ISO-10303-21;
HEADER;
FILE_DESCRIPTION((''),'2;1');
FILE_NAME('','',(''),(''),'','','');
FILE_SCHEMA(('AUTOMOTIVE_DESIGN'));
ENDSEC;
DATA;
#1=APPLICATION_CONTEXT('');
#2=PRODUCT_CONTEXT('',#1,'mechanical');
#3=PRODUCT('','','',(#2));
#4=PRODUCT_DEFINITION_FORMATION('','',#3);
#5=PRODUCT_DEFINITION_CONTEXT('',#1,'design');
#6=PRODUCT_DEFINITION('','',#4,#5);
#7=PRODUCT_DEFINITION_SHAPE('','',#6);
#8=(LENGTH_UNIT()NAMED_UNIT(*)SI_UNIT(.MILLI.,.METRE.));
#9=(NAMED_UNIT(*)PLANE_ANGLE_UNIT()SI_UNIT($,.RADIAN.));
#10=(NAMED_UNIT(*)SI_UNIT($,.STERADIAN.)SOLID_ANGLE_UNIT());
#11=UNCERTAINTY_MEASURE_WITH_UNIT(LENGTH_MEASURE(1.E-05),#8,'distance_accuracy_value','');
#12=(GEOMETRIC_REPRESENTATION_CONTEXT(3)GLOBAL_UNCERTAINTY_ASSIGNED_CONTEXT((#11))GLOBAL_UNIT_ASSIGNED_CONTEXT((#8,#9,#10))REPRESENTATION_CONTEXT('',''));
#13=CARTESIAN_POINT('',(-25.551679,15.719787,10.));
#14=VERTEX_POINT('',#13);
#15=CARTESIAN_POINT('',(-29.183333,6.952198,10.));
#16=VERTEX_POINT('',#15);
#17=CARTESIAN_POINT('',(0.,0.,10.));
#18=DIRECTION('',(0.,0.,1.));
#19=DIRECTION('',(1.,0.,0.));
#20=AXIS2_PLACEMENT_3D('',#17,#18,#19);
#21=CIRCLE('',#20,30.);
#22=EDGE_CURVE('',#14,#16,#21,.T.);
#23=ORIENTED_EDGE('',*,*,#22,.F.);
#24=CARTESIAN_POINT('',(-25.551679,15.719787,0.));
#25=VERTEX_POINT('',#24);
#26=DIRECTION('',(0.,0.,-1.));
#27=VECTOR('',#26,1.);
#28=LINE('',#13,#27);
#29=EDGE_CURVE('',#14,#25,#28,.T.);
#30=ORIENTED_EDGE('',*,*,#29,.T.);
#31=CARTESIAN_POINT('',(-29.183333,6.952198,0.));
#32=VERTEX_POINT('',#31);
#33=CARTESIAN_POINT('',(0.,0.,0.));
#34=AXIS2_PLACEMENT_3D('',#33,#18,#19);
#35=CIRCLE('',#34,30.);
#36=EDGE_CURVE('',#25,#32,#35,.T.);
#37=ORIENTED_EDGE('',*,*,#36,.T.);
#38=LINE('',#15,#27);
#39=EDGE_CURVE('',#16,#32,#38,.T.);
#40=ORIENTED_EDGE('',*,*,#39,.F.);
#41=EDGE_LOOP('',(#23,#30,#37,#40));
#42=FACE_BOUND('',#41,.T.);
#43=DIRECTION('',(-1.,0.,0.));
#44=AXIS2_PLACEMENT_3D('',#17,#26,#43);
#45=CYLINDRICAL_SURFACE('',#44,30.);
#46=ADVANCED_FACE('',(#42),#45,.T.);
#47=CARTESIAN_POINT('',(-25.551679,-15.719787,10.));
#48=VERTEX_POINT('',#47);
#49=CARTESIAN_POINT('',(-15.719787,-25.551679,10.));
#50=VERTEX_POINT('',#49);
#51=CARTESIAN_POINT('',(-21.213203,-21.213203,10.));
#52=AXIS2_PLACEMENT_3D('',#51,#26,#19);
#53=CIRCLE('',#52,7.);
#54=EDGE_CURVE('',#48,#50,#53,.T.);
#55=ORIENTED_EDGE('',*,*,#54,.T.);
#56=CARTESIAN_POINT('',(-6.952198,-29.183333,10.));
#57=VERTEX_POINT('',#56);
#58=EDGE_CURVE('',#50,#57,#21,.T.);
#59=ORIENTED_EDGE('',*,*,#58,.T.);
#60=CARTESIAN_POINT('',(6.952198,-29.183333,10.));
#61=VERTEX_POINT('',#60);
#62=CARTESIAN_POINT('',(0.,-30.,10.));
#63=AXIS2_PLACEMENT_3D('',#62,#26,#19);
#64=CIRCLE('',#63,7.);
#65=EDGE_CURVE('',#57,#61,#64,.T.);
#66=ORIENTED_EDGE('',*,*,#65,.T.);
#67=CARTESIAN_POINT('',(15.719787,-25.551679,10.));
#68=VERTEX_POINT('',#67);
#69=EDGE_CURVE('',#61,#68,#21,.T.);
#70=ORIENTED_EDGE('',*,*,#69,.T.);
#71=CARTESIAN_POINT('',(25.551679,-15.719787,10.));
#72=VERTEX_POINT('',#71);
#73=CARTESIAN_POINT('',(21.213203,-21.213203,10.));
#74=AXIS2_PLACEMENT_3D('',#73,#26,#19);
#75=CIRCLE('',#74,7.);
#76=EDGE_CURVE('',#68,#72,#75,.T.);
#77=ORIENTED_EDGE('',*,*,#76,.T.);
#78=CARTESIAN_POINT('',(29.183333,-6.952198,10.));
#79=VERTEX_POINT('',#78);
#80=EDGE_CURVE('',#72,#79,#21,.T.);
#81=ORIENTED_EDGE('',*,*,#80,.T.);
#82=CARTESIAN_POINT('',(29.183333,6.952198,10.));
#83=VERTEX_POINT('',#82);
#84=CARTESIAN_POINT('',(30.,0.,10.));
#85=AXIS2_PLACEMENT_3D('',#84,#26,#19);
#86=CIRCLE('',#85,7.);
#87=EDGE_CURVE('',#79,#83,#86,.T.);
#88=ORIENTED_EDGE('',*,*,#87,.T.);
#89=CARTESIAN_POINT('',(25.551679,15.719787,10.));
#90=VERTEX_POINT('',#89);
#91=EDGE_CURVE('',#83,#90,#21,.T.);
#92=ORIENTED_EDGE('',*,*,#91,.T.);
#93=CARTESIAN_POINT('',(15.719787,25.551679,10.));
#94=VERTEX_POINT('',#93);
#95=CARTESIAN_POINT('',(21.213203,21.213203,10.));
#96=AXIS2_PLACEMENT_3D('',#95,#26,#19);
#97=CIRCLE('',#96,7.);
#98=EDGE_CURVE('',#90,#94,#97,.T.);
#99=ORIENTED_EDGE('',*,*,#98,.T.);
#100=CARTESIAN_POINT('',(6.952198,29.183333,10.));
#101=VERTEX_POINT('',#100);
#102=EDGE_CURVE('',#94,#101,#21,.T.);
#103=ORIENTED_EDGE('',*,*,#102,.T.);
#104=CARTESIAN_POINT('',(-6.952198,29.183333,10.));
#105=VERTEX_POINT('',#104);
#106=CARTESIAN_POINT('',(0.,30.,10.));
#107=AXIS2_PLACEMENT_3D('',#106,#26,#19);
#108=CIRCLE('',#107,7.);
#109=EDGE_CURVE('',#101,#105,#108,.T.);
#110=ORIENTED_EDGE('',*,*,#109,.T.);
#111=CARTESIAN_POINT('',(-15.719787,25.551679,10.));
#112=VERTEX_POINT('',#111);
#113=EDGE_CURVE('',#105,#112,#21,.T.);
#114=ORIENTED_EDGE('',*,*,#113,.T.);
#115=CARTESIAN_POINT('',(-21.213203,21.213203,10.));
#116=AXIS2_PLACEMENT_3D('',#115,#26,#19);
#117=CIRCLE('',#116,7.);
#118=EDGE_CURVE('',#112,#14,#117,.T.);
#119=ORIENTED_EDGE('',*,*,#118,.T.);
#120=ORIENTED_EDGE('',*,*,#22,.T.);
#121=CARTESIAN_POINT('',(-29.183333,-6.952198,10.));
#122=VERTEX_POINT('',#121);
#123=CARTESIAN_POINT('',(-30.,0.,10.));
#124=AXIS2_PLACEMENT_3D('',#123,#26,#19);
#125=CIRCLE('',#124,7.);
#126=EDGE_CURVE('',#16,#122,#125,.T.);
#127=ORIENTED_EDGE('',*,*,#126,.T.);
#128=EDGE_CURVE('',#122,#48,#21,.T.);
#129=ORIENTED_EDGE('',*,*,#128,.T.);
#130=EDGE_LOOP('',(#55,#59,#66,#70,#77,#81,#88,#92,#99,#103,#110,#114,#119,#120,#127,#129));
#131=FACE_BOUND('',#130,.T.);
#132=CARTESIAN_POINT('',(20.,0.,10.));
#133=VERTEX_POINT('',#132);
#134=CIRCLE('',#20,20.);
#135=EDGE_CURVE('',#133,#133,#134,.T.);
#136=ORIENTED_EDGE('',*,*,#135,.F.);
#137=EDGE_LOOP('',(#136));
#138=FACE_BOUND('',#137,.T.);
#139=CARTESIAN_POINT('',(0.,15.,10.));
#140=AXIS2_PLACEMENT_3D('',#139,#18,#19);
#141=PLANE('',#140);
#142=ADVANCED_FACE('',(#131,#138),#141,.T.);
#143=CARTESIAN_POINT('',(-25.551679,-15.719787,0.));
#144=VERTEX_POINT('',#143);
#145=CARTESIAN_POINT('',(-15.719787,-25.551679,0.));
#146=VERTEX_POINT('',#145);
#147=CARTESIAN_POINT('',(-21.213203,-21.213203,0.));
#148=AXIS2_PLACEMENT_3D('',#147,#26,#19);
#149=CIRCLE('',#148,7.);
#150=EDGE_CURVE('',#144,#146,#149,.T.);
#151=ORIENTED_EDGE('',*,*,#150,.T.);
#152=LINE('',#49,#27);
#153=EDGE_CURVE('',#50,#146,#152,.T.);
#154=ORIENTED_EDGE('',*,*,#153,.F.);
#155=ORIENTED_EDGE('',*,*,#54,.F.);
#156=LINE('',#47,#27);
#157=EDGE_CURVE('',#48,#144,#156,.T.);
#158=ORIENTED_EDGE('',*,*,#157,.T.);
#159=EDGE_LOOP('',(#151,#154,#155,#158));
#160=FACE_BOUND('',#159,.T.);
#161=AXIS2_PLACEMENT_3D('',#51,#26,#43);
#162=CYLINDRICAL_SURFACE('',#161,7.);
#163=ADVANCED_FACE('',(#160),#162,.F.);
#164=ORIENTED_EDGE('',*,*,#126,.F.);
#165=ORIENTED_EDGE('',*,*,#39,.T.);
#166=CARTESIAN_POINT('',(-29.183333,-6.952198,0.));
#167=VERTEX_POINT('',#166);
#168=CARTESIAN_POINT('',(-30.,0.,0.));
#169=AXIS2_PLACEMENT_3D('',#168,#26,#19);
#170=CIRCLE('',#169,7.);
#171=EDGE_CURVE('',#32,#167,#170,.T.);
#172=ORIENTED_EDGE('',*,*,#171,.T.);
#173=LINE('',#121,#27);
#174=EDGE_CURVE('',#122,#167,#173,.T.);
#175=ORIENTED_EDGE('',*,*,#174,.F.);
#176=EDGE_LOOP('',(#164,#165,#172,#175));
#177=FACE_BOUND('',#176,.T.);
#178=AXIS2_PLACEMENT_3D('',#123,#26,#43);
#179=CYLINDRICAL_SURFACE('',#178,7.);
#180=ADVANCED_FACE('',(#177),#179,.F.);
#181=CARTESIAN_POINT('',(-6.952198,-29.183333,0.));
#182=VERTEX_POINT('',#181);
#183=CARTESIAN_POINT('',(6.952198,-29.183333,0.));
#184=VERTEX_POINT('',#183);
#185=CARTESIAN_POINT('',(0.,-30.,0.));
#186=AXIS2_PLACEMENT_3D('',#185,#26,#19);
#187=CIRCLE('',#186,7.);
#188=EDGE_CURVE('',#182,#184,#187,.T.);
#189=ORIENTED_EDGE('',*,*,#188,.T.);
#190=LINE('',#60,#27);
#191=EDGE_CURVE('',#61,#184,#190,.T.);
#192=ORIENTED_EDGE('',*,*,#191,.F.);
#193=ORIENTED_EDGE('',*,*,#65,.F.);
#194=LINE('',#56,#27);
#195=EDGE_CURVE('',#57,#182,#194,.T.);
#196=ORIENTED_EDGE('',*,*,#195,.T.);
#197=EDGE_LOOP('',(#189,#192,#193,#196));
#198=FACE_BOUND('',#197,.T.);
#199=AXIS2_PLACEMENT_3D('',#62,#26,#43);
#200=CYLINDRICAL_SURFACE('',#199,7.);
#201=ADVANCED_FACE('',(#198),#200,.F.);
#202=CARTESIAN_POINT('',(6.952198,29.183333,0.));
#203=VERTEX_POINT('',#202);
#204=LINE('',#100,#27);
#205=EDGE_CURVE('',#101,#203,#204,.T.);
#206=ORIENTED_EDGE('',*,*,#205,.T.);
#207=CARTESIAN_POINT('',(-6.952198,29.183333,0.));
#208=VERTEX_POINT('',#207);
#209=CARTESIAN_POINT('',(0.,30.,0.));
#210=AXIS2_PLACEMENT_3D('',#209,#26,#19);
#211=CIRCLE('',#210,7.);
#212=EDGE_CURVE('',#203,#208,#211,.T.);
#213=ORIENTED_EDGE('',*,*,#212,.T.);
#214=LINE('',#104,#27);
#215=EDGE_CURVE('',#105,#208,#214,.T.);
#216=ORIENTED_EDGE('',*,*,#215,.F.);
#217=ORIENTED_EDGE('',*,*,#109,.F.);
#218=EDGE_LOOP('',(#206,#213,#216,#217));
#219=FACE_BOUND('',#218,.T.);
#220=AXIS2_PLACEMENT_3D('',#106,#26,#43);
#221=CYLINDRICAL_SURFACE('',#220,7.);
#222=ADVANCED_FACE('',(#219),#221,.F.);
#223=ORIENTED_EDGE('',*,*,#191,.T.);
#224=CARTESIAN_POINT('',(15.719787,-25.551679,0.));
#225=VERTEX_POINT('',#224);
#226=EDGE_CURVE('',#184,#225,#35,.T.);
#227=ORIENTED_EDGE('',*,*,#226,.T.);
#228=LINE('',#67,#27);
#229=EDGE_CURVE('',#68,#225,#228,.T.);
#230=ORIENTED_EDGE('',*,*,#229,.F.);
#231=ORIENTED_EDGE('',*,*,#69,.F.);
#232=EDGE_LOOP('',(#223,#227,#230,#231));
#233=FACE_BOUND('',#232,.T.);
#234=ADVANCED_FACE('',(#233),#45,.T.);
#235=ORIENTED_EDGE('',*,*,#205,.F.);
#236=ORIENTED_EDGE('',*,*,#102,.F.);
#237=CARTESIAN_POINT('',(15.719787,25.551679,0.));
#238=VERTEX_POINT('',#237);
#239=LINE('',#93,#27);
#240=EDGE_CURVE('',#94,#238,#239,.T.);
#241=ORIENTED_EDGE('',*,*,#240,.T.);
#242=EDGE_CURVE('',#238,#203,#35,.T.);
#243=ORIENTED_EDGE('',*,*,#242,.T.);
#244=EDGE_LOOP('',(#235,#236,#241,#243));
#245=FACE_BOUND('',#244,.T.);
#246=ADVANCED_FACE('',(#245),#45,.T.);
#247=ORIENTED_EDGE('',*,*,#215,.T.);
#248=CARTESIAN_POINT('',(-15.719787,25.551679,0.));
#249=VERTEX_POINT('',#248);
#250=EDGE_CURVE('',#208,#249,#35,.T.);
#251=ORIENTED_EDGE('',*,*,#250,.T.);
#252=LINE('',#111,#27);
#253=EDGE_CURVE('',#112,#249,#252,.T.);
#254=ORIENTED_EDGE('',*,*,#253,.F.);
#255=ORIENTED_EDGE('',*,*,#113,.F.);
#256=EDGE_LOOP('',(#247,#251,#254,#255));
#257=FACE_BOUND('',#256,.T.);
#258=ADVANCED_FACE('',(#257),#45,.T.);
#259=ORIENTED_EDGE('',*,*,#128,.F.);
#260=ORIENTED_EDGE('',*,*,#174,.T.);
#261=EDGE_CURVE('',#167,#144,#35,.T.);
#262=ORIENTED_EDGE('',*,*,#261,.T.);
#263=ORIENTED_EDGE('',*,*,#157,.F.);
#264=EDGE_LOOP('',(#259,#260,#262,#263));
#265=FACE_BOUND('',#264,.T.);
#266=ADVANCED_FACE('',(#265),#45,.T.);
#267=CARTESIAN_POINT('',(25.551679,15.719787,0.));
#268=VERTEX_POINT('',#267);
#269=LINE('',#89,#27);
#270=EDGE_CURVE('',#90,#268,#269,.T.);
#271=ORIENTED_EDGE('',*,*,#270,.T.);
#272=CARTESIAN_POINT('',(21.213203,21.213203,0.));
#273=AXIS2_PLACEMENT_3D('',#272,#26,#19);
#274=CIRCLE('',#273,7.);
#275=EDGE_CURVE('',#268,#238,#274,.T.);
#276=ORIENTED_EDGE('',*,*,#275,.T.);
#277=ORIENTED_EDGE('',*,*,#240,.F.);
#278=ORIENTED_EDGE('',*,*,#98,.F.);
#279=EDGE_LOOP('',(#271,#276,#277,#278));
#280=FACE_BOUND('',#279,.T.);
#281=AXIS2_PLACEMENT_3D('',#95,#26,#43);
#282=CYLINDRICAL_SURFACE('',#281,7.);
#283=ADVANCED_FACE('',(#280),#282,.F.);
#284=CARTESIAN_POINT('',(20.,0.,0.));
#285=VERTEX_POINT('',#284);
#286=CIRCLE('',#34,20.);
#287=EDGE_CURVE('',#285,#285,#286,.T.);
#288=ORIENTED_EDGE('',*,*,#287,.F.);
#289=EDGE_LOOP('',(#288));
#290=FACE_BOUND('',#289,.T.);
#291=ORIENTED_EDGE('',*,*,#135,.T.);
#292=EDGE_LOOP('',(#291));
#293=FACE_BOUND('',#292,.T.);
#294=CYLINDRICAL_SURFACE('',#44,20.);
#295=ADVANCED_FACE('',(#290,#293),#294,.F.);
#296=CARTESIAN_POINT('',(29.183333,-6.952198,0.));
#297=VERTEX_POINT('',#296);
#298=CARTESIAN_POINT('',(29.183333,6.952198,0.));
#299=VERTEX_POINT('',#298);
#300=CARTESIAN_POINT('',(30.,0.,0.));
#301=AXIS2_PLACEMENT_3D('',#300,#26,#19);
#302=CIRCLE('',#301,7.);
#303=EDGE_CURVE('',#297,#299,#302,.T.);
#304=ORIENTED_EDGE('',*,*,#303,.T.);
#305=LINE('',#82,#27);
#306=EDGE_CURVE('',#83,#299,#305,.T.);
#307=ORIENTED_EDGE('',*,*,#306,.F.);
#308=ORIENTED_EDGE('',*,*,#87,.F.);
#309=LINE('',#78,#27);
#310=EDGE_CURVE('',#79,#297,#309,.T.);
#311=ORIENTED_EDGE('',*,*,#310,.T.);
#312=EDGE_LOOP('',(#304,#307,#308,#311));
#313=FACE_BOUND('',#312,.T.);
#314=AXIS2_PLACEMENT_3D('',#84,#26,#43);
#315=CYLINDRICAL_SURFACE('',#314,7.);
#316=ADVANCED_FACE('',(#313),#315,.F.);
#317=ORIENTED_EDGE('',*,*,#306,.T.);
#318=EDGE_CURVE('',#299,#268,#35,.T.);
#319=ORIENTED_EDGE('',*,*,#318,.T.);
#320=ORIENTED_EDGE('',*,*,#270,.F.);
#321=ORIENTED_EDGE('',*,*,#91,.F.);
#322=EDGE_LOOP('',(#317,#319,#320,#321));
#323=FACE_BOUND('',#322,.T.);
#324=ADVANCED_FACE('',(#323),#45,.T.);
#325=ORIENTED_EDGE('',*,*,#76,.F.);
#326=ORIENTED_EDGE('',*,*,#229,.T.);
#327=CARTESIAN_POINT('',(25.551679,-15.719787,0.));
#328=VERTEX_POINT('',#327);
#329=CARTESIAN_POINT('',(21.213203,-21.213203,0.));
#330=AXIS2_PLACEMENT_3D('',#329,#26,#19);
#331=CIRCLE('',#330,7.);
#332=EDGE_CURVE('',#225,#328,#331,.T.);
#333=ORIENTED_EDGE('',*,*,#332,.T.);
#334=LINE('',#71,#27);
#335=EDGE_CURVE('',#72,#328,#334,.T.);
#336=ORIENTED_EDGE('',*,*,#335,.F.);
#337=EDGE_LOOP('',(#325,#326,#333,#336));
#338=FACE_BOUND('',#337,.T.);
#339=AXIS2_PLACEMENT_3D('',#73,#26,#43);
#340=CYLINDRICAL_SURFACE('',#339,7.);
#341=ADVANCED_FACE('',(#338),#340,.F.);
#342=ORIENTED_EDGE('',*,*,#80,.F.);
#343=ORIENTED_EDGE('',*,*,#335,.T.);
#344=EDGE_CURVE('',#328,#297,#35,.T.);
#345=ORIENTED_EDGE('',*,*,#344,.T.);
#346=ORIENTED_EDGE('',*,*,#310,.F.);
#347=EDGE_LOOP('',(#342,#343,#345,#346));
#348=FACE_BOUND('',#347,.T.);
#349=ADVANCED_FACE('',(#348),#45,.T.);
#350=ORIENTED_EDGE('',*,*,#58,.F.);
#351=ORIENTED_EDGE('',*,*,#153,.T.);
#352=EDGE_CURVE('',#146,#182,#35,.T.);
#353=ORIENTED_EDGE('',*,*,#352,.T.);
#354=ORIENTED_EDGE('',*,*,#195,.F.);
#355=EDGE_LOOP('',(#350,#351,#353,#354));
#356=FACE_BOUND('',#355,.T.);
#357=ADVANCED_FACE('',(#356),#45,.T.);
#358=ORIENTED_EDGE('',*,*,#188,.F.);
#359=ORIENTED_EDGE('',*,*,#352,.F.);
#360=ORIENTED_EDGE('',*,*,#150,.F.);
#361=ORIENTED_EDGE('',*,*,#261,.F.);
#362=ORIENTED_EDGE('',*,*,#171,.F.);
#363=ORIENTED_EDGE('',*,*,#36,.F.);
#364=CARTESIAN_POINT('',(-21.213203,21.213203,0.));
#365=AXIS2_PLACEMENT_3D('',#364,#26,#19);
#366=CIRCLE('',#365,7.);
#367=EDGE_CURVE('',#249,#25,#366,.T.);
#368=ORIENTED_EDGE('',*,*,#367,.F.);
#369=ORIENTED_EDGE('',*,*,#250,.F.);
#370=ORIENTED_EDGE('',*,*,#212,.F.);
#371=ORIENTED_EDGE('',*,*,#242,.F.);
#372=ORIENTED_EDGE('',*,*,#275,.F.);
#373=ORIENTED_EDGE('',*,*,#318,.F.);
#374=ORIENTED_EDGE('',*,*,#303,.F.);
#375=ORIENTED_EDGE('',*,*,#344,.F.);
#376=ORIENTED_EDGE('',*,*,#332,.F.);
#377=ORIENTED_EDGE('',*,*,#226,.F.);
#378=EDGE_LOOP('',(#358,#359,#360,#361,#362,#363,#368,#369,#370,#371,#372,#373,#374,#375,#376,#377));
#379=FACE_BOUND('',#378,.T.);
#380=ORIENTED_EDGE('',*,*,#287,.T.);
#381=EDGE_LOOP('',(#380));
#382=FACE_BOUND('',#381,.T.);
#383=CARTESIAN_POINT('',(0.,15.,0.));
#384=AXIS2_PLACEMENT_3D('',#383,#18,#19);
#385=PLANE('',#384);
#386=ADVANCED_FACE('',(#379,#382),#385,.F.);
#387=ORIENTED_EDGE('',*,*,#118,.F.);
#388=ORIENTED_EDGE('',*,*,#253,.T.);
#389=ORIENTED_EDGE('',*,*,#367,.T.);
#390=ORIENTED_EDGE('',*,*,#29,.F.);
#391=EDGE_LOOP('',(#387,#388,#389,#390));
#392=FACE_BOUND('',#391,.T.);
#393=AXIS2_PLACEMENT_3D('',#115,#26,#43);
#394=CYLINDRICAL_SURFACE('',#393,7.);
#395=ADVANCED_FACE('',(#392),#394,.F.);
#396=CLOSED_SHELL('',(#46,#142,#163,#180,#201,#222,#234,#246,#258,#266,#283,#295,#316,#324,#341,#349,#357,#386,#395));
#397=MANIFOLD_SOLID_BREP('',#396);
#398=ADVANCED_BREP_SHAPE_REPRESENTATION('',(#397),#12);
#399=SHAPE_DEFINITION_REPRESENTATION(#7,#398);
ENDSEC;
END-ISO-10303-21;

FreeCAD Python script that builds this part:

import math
import FreeCAD as App
import Part
import Sketcher
Q = App.Units.Quantity

doc = App.newDocument("Part")
body = doc.addObject("PartDesign::Body", "Body")

# Sketch on XY plane
sketch1 = body.newObject("Sketcher::SketchObject", "Sketch")
sketch1.AttachmentSupport = (doc.getObject("XY_Plane"), [""])
sketch1.MapMode = "FlatFace"
sketch1.addGeometry([
    Part.ArcOfCircle(Part.Circle(App.Vector(0, 0, 0), App.Vector(0, 0, 1), 30), math.radians(103.4), math.radians(121.6)),  # 0
    Part.ArcOfCircle(Part.Circle(App.Vector(-21, 21, 0), App.Vector(0, 0, 1), 7), math.radians(-128), math.radians(38)),  # 1
    Part.ArcOfCircle(Part.Circle(App.Vector(0, 0, 0), App.Vector(0, 0, 1), 30), math.radians(148.4), math.radians(166.6)),  # 2
    Part.ArcOfCircle(Part.Circle(App.Vector(-30, 0, 0), App.Vector(0, 0, 1), 7), math.radians(-83), math.radians(83)),  # 3
    Part.ArcOfCircle(Part.Circle(App.Vector(0, 0, 0), App.Vector(0, 0, 1), 30), math.radians(-166.6), math.radians(-148.4)),  # 4
    Part.ArcOfCircle(Part.Circle(App.Vector(-21, -21, 0), App.Vector(0, 0, 1), 7), math.radians(-38), math.radians(128)),  # 5
    Part.ArcOfCircle(Part.Circle(App.Vector(0, 0, 0), App.Vector(0, 0, 1), 30), math.radians(-121.6), math.radians(-103.4)),  # 6
    Part.ArcOfCircle(Part.Circle(App.Vector(0, -30, 0), App.Vector(0, 0, 1), 7), math.radians(7), math.radians(173)),  # 7
    Part.ArcOfCircle(Part.Circle(App.Vector(0, 0, 0), App.Vector(0, 0, 1), 30), math.radians(-76.6), math.radians(-58.4)),  # 8
    Part.ArcOfCircle(Part.Circle(App.Vector(21, -21, 0), App.Vector(0, 0, 1), 7), math.radians(52), math.radians(218)),  # 9
    Part.ArcOfCircle(Part.Circle(App.Vector(0, 0, 0), App.Vector(0, 0, 1), 30), math.radians(-31.6), math.radians(-13.4)),  # 10
    Part.ArcOfCircle(Part.Circle(App.Vector(30, 0, 0), App.Vector(0, 0, 1), 7), math.radians(97), math.radians(263)),  # 11
    Part.ArcOfCircle(Part.Circle(App.Vector(0, 0, 0), App.Vector(0, 0, 1), 30), math.radians(13.4), math.radians(31.6)),  # 12
    Part.ArcOfCircle(Part.Circle(App.Vector(21, 21, 0), App.Vector(0, 0, 1), 7), math.radians(142), math.radians(308)),  # 13
    Part.ArcOfCircle(Part.Circle(App.Vector(0, 0, 0), App.Vector(0, 0, 1), 30), math.radians(58.4), math.radians(76.6)),  # 14
    Part.ArcOfCircle(Part.Circle(App.Vector(0, 30, 0), App.Vector(0, 0, 1), 7), math.radians(-173), math.radians(-7)),  # 15
    Part.Circle(App.Vector(0, 0, 0), App.Vector(0, 0, 1), 20),  # 16
], False)
sketch1.addConstraint([
    Sketcher.Constraint("Coincident", 0, 2, 1, 2),
    Sketcher.Constraint("Coincident", 1, 1, 2, 1),
    Sketcher.Constraint("Coincident", 2, 2, 3, 2),
    Sketcher.Constraint("Coincident", 3, 1, 4, 1),
    Sketcher.Constraint("Coincident", 4, 2, 5, 2),
    Sketcher.Constraint("Coincident", 5, 1, 6, 1),
    Sketcher.Constraint("Coincident", 6, 2, 7, 2),
    Sketcher.Constraint("Coincident", 7, 1, 8, 1),
    Sketcher.Constraint("Coincident", 8, 2, 9, 2),
    Sketcher.Constraint("Coincident", 9, 1, 10, 1),
    Sketcher.Constraint("Coincident", 10, 2, 11, 2),
    Sketcher.Constraint("Coincident", 11, 1, 12, 1),
    Sketcher.Constraint("Coincident", 12, 2, 13, 2),
    Sketcher.Constraint("Coincident", 13, 1, 14, 1),
    Sketcher.Constraint("Coincident", 14, 2, 15, 2),
    Sketcher.Constraint("Coincident", 15, 1, 0, 1),
    Sketcher.Constraint("Coincident", 0, 3, -1, 1),
    Sketcher.Constraint("Coincident", 2, 3, -1, 1),
    Sketcher.Constraint("Coincident", 4, 3, -1, 1),
    Sketcher.Constraint("Coincident", 6, 3, -1, 1),
    Sketcher.Constraint("Coincident", 8, 3, -1, 1),
    Sketcher.Constraint("Coincident", 10, 3, -1, 1),
    Sketcher.Constraint("Coincident", 12, 3, -1, 1),
    Sketcher.Constraint("Coincident", 14, 3, -1, 1),
    Sketcher.Constraint("Coincident", 16, 3, -1, 1),
    Sketcher.Constraint("Equal", 0, 2),
    Sketcher.Constraint("Equal", 1, 3),
    Sketcher.Constraint("Equal", 2, 4),
    Sketcher.Constraint("Equal", 3, 5),
    Sketcher.Constraint("Equal", 4, 6),
    Sketcher.Constraint("Equal", 5, 7),
    Sketcher.Constraint("Equal", 6, 8),
    Sketcher.Constraint("Equal", 7, 9),
    Sketcher.Constraint("Equal", 8, 10),
    Sketcher.Constraint("Equal", 9, 11),
    Sketcher.Constraint("Equal", 10, 12),
    Sketcher.Constraint("Equal", 11, 13),
    Sketcher.Constraint("Equal", 12, 14),
    Sketcher.Constraint("Equal", 13, 15),
    Sketcher.Constraint("Symmetric", 1, 3, 9, 3, -1, 1),
    Sketcher.Constraint("Symmetric", 3, 3, 11, 3, -1, 1),
    Sketcher.Constraint("Symmetric", 5, 3, 13, 3, -1, 1),
    Sketcher.Constraint("Symmetric", 7, 3, 15, 3, -1, 1),
    Sketcher.Constraint("Symmetric", 5, 3, 9, 3, -2),
    Sketcher.Constraint("PointOnObject", 3, 3, -1),
    Sketcher.Constraint("PointOnObject", 7, 3, -2),
    Sketcher.Constraint("Diameter", 16, Q("40 mm")),
    Sketcher.Constraint("Radius", 0, Q("30 mm")),
    Sketcher.Constraint("Radius", 1, Q("7 mm")),
    Sketcher.Constraint("DistanceX", 3, 3, -1, 1, Q("30 mm")),
    Sketcher.Constraint("DistanceY", 7, 3, -1, 1, Q("30 mm")),
    Sketcher.Constraint("DistanceY", 5, 3, 2, 2, Q("28.165401 mm")),
    Sketcher.Constraint("DistanceX", 6, 2, 9, 3, Q("28.165401 mm")),
])
pad1 = body.newObject("PartDesign::Pad", "Pad")
pad1.Profile = sketch1
pad1.Length = 10

doc.recompute()
